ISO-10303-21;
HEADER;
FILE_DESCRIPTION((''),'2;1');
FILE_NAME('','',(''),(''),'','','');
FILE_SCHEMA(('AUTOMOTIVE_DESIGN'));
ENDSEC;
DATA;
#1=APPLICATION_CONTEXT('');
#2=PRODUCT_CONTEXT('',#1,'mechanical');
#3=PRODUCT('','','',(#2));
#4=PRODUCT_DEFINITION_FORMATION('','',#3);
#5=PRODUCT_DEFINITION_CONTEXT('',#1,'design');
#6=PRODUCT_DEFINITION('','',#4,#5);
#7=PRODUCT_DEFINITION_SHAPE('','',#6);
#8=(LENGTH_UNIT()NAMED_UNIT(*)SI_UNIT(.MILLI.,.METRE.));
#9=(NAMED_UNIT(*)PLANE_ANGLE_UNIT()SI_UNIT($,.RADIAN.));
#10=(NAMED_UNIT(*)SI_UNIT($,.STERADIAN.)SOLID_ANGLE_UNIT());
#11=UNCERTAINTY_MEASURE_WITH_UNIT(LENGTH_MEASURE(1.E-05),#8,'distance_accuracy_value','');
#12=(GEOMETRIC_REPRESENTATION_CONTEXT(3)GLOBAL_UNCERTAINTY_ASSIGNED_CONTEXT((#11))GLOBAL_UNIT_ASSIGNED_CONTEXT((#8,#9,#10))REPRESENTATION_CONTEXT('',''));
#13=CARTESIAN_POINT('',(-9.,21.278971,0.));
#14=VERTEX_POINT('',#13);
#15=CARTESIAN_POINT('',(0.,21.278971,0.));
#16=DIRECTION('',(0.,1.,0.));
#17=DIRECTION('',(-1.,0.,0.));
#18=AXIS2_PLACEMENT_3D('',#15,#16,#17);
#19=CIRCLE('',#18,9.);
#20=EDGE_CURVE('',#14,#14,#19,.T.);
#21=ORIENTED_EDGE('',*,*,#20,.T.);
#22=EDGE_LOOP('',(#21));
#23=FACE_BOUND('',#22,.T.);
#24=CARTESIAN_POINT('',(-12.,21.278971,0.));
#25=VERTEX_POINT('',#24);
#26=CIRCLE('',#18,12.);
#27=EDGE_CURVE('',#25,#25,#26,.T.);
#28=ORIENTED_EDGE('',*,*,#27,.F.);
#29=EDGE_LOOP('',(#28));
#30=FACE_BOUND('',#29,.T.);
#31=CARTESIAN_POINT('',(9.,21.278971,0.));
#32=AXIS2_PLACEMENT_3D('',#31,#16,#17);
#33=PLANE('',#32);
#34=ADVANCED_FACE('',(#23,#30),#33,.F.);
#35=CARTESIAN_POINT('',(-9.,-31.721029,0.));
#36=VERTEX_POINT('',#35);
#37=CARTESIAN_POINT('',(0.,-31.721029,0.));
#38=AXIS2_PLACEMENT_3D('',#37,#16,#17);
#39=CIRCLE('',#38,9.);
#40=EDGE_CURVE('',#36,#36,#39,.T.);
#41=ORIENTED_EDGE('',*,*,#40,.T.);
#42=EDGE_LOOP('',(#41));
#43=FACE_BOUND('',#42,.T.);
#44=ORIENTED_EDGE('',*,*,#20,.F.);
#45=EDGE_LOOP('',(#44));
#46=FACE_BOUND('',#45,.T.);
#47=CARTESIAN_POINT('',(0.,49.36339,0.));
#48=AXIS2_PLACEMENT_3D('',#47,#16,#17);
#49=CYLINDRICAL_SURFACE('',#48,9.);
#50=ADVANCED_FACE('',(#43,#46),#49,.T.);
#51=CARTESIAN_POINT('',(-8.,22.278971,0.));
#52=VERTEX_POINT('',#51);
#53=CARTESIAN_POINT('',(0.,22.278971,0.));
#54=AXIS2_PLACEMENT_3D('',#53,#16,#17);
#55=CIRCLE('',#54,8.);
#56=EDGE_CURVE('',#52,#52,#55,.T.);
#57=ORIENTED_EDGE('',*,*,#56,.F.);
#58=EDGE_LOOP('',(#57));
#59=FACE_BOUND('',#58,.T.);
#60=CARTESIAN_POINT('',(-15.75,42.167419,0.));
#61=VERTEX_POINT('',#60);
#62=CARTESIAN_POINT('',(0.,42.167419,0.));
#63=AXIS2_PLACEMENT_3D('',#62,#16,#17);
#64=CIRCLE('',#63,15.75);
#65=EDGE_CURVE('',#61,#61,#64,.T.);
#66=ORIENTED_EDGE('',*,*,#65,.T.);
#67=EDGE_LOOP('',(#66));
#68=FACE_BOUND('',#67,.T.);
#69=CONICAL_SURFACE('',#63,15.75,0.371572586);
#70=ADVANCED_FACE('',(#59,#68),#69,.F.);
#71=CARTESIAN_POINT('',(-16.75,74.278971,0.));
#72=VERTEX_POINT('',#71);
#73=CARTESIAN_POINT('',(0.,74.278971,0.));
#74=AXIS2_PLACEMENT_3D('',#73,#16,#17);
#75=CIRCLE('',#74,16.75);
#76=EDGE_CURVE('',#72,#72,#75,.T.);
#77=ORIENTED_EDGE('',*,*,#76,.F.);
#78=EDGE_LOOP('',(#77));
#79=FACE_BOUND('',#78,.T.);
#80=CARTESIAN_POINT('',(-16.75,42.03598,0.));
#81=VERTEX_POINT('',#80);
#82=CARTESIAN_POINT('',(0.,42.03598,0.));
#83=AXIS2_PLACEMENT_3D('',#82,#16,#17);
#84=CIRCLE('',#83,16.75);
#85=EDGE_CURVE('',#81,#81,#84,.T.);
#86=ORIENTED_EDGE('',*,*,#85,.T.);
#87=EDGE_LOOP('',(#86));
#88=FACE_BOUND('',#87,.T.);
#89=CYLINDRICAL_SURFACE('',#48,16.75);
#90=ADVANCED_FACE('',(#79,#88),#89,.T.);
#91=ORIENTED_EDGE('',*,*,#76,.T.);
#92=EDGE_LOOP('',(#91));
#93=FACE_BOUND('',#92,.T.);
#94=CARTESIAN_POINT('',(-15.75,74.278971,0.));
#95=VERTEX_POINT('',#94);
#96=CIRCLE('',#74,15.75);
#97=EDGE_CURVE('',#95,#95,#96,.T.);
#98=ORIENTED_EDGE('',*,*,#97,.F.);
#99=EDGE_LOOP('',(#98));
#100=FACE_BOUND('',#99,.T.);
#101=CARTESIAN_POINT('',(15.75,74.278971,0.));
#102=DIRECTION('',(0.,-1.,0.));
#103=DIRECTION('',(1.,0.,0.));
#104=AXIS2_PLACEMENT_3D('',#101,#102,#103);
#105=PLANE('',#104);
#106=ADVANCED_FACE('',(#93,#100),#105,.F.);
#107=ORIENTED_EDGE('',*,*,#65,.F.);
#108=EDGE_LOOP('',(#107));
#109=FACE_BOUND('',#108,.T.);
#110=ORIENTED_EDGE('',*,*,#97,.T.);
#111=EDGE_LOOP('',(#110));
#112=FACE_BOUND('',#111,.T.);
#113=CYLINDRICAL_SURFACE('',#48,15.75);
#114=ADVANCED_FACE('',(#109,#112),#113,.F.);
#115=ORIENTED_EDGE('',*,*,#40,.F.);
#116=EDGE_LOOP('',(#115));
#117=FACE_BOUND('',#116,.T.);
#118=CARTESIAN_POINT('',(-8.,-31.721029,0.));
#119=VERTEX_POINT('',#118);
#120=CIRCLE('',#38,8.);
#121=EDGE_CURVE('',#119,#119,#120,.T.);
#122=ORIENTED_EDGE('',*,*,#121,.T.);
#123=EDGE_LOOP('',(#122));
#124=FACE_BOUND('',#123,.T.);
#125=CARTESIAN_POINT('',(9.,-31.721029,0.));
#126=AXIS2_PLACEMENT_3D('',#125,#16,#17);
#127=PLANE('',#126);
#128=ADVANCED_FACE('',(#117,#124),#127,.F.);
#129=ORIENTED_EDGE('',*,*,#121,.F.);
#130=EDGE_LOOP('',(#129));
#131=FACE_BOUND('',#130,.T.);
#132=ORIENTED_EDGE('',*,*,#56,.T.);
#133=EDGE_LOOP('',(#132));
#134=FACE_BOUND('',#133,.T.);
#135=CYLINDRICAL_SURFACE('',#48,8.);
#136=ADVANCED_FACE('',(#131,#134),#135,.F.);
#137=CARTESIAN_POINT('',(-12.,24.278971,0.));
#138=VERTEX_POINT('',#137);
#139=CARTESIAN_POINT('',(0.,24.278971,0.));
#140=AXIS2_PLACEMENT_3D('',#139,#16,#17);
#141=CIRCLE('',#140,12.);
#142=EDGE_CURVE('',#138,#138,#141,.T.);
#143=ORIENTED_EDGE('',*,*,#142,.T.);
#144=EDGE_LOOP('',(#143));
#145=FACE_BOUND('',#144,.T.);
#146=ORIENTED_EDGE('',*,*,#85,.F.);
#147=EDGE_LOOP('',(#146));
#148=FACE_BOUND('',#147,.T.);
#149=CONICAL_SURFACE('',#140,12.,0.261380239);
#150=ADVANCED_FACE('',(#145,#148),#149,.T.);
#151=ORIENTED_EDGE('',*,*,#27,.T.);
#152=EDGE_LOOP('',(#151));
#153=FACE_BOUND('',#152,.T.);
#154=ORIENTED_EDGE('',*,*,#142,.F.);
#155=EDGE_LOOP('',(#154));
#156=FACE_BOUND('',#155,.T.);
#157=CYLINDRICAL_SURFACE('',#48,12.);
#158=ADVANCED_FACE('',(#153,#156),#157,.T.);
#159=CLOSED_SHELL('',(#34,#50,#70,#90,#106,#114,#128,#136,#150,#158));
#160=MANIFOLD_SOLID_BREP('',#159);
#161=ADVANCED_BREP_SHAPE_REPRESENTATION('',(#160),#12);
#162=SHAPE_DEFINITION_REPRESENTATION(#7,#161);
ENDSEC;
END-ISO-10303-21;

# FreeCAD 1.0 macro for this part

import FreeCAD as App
import Part
import Sketcher
from FreeCAD import Vector
Q = App.Units.Quantity


def add_polygon(sketch, points):
    """Adds a closed chain of lines whose ends are joined by coincident constraints."""
    first, n = sketch.GeometryCount, len(points)
    for a, b in zip(points, points[1:] + points[:1]):
        sketch.addGeometry(Part.LineSegment(App.Vector(*a, 0), App.Vector(*b, 0)), False)
    for i in range(n):
        sketch.addConstraint(Sketcher.Constraint("Coincident", first + i, 2, first + (i + 1) % n, 1))

doc = App.newDocument("Part")
body = doc.addObject("PartDesign::Body", "Body")

# Sketch on XY plane
sketch1 = doc.addObject("Sketcher::SketchObject", "Sketch")
body.addObject(sketch1)
sketch1.AttachmentSupport = (doc.XY_Plane, [""])
sketch1.MapMode = "FlatFace"
add_polygon(sketch1, [(8, -31.7), (9, -31.7), (9, 21.3), (12, 21.3), (12, 24.3), (16.8, 42), (16.8, 74.3), (15.8, 74.3), (15.8, 42.2), (8, 22.3)])  # lines 0-9
sketch1.addConstraint([
    Sketcher.Constraint("Horizontal", 0),
    Sketcher.Constraint("Vertical", 1),
    Sketcher.Constraint("Horizontal", 2),
    Sketcher.Constraint("Vertical", 3),
    Sketcher.Constraint("Vertical", 5),
    Sketcher.Constraint("Horizontal", 6),
    Sketcher.Constraint("Vertical", 7),
    Sketcher.Constraint("Vertical", 9),
    Sketcher.Constraint("Equal", 0, 6),
    Sketcher.Constraint("Equal", 2, 3),
    Sketcher.Constraint("DistanceX", 0, 1, 0, 2, Q("1 mm")),
    Sketcher.Constraint("DistanceX", 2, 1, 2, 2, Q("3 mm")),
    Sketcher.Constraint("DistanceY", 1, 1, 1, 2, Q("53 mm")),
    Sketcher.Constraint("DistanceY", 9, 2, 9, 1, Q("54 mm")),
    Sketcher.Constraint("DistanceX", -1, 1, 0, 2, Q("9 mm")),
    Sketcher.Constraint("DistanceY", 3, 2, 5, 2, Q("50 mm")),
    Sketcher.Constraint("DistanceX", -1, 1, 4, 2, Q("16.75 mm")),
    Sketcher.Constraint("DistanceY", 5, 1, 5, 2, Q("32.242991 mm")),
    Sketcher.Constraint("DistanceY", 7, 2, 7, 1, Q("32.111551 mm")),
    Sketcher.Constraint("DistanceY", 0, 2, -1, 1, Q("31.721029 mm")),
])
revolution = doc.addObject("PartDesign::Revolution", "Revolution")
body.addObject(revolution)
revolution.Profile = sketch1
revolution.ReferenceAxis = (sketch1, ["V_Axis"])
revolution.Angle = 360

doc.recompute()
